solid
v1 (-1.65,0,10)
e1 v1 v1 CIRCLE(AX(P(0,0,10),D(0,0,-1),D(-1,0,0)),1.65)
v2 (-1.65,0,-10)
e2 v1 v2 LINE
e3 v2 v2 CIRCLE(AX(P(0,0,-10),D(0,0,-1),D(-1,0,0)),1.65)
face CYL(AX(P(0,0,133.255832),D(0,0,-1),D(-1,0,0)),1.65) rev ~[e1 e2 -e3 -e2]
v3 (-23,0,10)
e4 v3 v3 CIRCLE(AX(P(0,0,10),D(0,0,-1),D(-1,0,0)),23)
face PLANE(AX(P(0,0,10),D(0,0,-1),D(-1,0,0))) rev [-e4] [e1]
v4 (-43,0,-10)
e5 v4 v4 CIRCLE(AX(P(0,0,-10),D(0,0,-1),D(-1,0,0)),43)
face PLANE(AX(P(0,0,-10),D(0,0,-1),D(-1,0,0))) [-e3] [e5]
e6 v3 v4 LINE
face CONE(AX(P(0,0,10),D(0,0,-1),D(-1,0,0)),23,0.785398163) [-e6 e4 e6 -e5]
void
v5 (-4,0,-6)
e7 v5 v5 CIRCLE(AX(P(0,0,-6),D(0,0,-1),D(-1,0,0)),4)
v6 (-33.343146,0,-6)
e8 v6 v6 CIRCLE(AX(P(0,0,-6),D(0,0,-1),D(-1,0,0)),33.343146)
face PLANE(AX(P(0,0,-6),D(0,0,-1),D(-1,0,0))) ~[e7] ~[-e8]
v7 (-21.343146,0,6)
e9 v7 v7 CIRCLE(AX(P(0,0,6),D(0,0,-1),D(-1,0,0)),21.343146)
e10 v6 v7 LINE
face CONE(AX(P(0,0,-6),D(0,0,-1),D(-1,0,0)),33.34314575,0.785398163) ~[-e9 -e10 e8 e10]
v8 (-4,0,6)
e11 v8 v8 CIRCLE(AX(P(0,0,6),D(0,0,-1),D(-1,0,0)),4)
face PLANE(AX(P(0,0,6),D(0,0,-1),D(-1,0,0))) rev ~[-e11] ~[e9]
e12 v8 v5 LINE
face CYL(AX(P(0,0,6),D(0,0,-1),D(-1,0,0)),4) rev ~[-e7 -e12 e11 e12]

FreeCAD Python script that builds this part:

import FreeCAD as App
import Part
import Sketcher

V = App.Vector

doc = App.newDocument("Part")
body = doc.addObject("PartDesign::Body", "Body")

sketch1 = doc.addObject("Sketcher::SketchObject", "Sketch")
body.addObject(sketch1)
sketch1.AttachmentSupport = (doc.XZ_Plane, [""])
sketch1.MapMode = "FlatFace"
sketch1.addGeometry(Part.LineSegment(V(0, 10, 0), V(-23, 10, 0)), False)
sketch1.addGeometry(Part.LineSegment(V(-23, 10, 0), V(-43, -10, 0)), False)
sketch1.addGeometry(Part.LineSegment(V(-43, -10, 0), V(0, -10, 0)), False)
sketch1.addGeometry(Part.LineSegment(V(0, -10, 0), V(0, 10, 0)), False)
sketch1.addGeometry(Part.LineSegment(V(-4, -6, 0), V(-33, -6, 0)), False)
sketch1.addGeometry(Part.LineSegment(V(-33, -6, 0), V(-21, 6, 0)), False)
sketch1.addGeometry(Part.LineSegment(V(-21, 6, 0), V(-4, 6, 0)), False)
sketch1.addGeometry(Part.LineSegment(V(-4, 6, 0), V(-4, -6, 0)), False)
sketch1.addConstraint(Sketcher.Constraint("Coincident", 0, 2, 1, 1))
sketch1.addConstraint(Sketcher.Constraint("Coincident", 1, 2, 2, 1))
sketch1.addConstraint(Sketcher.Constraint("Coincident", 2, 2, 3, 1))
sketch1.addConstraint(Sketcher.Constraint("Coincident", 3, 2, 0, 1))
sketch1.addConstraint(Sketcher.Constraint("Coincident", 4, 2, 5, 1))
sketch1.addConstraint(Sketcher.Constraint("Coincident", 5, 2, 6, 1))
sketch1.addConstraint(Sketcher.Constraint("Coincident", 6, 2, 7, 1))
sketch1.addConstraint(Sketcher.Constraint("Coincident", 7, 2, 4, 1))
sketch1.addConstraint(Sketcher.Constraint("Horizontal", 0))
sketch1.addConstraint(Sketcher.Constraint("Horizontal", 2))
sketch1.addConstraint(Sketcher.Constraint("Vertical", 3))
sketch1.addConstraint(Sketcher.Constraint("Horizontal", 4))
sketch1.addConstraint(Sketcher.Constraint("Horizontal", 6))
sketch1.addConstraint(Sketcher.Constraint("Vertical", 7))
sketch1.addConstraint(Sketcher.Constraint("Symmetric", 2, 2, 3, 2, -1, 1))
sketch1.addConstraint(Sketcher.Constraint("Parallel", 1, 5))
sketch1.addConstraint(Sketcher.Constraint("DistanceX", 0, 2, 0, 1, 23.0))
sketch1.addConstraint(Sketcher.Constraint("DistanceX", 2, 1, 2, 2, 43.0))
sketch1.addConstraint(Sketcher.Constraint("DistanceY", 3, 1, 3, 2, 20.0))
sketch1.addConstraint(Sketcher.Constraint("DistanceY", 7, 2, 7, 1, 12.0))
sketch1.addConstraint(Sketcher.Constraint("DistanceY", 4, 2, -1, 1, 6.0))
sketch1.addConstraint(Sketcher.Constraint("DistanceX", 6, 2, -1, 1, 4.0))
sketch1.addConstraint(Sketcher.Constraint("DistanceX", 4, 2, 4, 1, 29.343146))
revolution = doc.addObject("PartDesign::Revolution", "Revolution")
body.addObject(revolution)
revolution.Profile = sketch1
revolution.ReferenceAxis = (sketch1, ["V_Axis"])
revolution.Angle = 360

sketch2 = doc.addObject("Sketcher::SketchObject", "Sketch001")
body.addObject(sketch2)
sketch2.AttachmentSupport = (doc.XY_Plane, [""])
sketch2.MapMode = "FlatFace"
sketch2.AttachmentOffset = App.Placement(V(0, 0, 10), App.Rotation())
sketch2.addGeometry(Part.Circle(V(0, 0, 0), V(0, 0, 1), 1.6), False)
sketch2.addConstraint(Sketcher.Constraint("Coincident", 0, 3, -1, 1))
sketch2.addConstraint(Sketcher.Constraint("Diameter", 0, 3.3))
doc.recompute()
hole = doc.addObject("PartDesign::Hole", "Hole")
body.addObject(hole)
hole.Profile = sketch2
hole.ThreadType = "None"
hole.Diameter = 3.3
hole.DepthType = "ThroughAll"

doc.recompute()
